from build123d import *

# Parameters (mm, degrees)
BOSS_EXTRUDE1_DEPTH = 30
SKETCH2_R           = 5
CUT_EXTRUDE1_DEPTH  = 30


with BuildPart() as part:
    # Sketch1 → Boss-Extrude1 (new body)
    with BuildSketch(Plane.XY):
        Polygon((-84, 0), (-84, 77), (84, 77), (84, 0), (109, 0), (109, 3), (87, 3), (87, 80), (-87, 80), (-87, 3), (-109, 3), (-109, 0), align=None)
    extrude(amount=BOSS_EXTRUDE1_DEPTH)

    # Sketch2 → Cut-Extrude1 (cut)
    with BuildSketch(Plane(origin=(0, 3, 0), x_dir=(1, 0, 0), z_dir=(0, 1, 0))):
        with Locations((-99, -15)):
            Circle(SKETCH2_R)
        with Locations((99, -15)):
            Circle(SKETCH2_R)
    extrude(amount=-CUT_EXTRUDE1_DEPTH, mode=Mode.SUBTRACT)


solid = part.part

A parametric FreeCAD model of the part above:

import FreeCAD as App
import Part
import Sketcher

doc = App.newDocument("Part")
params = doc.addObject("Spreadsheet::Sheet", "Params")
for row, (alias, value) in enumerate([
    ("sketch1_width", "168 mm"),
    ("sketch1_width2", "25 mm"),
    ("sketch1_width3", "22 mm"),
    ("sketch1_height", "77 mm"),
    ("sketch1_height2", "3 mm"),
    ("pad1_length", "30 mm"),
    ("sketch2_diameter", "10 mm"),
    ("pocket1_length", "30 mm"),
], start=1):
    params.set(f"A{row}", alias)
    params.set(f"B{row}", "=" + value)
    params.setAlias(f"B{row}", alias)

body = doc.addObject("PartDesign::Body", "Body")

# Sketch on XY plane
sketch1 = body.newObject("Sketcher::SketchObject", "Sketch")
sketch1.AttachmentSupport = (doc.getObject("XY_Plane"), [""])
sketch1.MapMode = "FlatFace"
sketch1.addGeometry([
    Part.LineSegment(App.Vector(-84, 0, 0), App.Vector(-84, 77, 0)),  # 0
    Part.LineSegment(App.Vector(-84, 77, 0), App.Vector(84, 77, 0)),  # 1
    Part.LineSegment(App.Vector(84, 77, 0), App.Vector(84, 0, 0)),  # 2
    Part.LineSegment(App.Vector(84, 0, 0), App.Vector(109, 0, 0)),  # 3
    Part.LineSegment(App.Vector(109, 0, 0), App.Vector(109, 3, 0)),  # 4
    Part.LineSegment(App.Vector(109, 3, 0), App.Vector(87, 3, 0)),  # 5
    Part.LineSegment(App.Vector(87, 3, 0), App.Vector(87, 80, 0)),  # 6
    Part.LineSegment(App.Vector(87, 80, 0), App.Vector(-87, 80, 0)),  # 7
    Part.LineSegment(App.Vector(-87, 80, 0), App.Vector(-87, 3, 0)),  # 8
    Part.LineSegment(App.Vector(-87, 3, 0), App.Vector(-109, 3, 0)),  # 9
    Part.LineSegment(App.Vector(-109, 3, 0), App.Vector(-109, 0, 0)),  # 10
    Part.LineSegment(App.Vector(-109, 0, 0), App.Vector(-84, 0, 0)),  # 11
], False)
sketch1.addConstraint([
    Sketcher.Constraint("Coincident", 0, 2, 1, 1),
    Sketcher.Constraint("Coincident", 1, 2, 2, 1),
    Sketcher.Constraint("Coincident", 2, 2, 3, 1),
    Sketcher.Constraint("Coincident", 3, 2, 4, 1),
    Sketcher.Constraint("Coincident", 4, 2, 5, 1),
    Sketcher.Constraint("Coincident", 5, 2, 6, 1),
    Sketcher.Constraint("Coincident", 6, 2, 7, 1),
    Sketcher.Constraint("Coincident", 7, 2, 8, 1),
    Sketcher.Constraint("Coincident", 8, 2, 9, 1),
    Sketcher.Constraint("Coincident", 9, 2, 10, 1),
    Sketcher.Constraint("Coincident", 10, 2, 11, 1),
    Sketcher.Constraint("Coincident", 11, 2, 0, 1),
    Sketcher.Constraint("Vertical", 0),
    Sketcher.Constraint("Horizontal", 1),
    Sketcher.Constraint("Vertical", 2),
    Sketcher.Constraint("Horizontal", 3),
    Sketcher.Constraint("Vertical", 4),
    Sketcher.Constraint("Horizontal", 5),
    Sketcher.Constraint("Vertical", 6),
    Sketcher.Constraint("Horizontal", 7),
    Sketcher.Constraint("Vertical", 8),
    Sketcher.Constraint("Horizontal", 9),
    Sketcher.Constraint("Vertical", 10),
    Sketcher.Constraint("Horizontal", 11),
    Sketcher.Constraint("Symmetric", 3, 2, 10, 2, -1, 1),
    Sketcher.Constraint("Symmetric", 5, 2, 8, 2, -2),
    Sketcher.Constraint("Symmetric", 2, 2, 11, 2, -2),
    Sketcher.Constraint("Equal", 2, 6),
    Sketcher.Constraint("DistanceX", 1, 1, 1, 2, 168.0),
    Sketcher.Constraint("DistanceX", 3, 1, 3, 2, 25.0),
    Sketcher.Constraint("DistanceX", 5, 2, 5, 1, 22.0),
    Sketcher.Constraint("DistanceY", 0, 1, 0, 2, 77.0),
    Sketcher.Constraint("DistanceY", 4, 1, 4, 2, 3.0),
])
sketch1.setExpression("Constraints[28]", "Params.sketch1_width")
sketch1.setExpression("Constraints[29]", "Params.sketch1_width2")
sketch1.setExpression("Constraints[30]", "Params.sketch1_width3")
sketch1.setExpression("Constraints[31]", "Params.sketch1_height")
sketch1.setExpression("Constraints[32]", "Params.sketch1_height2")
pad1 = body.newObject("PartDesign::Pad", "Pad")
pad1.Profile = sketch1
pad1.setExpression("Length", "Params.pad1_length")

# Sketch on XZ plane
sketch2 = body.newObject("Sketcher::SketchObject", "Sketch001")
sketch2.AttachmentSupport = (doc.getObject("XZ_Plane"), [""])
sketch2.MapMode = "FlatFace"
sketch2.AttachmentOffset = App.Placement(App.Vector(0, 0, -3), App.Rotation())
sketch2.addGeometry([
    Part.Circle(App.Vector(-99, 15, 0), App.Vector(0, 0, 1), 5),
    Part.Circle(App.Vector(99, 15, 0), App.Vector(0, 0, 1), 5),
], False)
sketch2.addConstraint([
    Sketcher.Constraint("Equal", 0, 1),
    Sketcher.Constraint("Symmetric", 0, 3, 1, 3, -2),
    Sketcher.Constraint("Diameter", 0, 10.0),
    Sketcher.Constraint("DistanceX", 0, 3, -1, 1, 99.0),
    Sketcher.Constraint("DistanceY", -1, 1, 0, 3, 15.0),
])
sketch2.setExpression("Constraints[2]", "Params.sketch2_diameter")
pocket1 = body.newObject("PartDesign::Pocket", "Pocket")
pocket1.Profile = sketch2
pocket1.setExpression("Length", "Params.pocket1_length")
pocket1.Reversed = True

doc.recompute()
